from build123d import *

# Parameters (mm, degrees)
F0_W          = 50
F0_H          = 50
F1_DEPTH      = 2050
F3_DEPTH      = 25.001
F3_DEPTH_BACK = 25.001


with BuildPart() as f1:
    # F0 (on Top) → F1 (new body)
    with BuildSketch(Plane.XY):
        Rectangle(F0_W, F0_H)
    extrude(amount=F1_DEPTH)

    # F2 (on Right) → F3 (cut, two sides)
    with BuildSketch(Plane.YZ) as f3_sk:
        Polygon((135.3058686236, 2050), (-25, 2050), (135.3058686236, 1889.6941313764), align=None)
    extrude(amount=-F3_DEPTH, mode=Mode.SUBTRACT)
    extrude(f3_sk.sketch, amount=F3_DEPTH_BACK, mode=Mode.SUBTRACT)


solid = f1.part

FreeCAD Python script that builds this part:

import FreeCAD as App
import Part
import Sketcher
from FreeCAD import Vector
Q = App.Units.Quantity

doc = App.newDocument("Part")
body = doc.addObject("PartDesign::Body", "Body")

sketch1 = body.newObject("Sketcher::SketchObject", "Sketch")
sketch1.AttachmentSupport = (doc.getObject("XY_Plane"), [""])
sketch1.MapMode = "FlatFace"
sketch1.addGeometry(Part.LineSegment(Vector(-25, 25, 0), Vector(-25, -25, 0)), False)
sketch1.addGeometry(Part.LineSegment(Vector(-25, -25, 0), Vector(25, -25, 0)), False)
sketch1.addGeometry(Part.LineSegment(Vector(25, -25, 0), Vector(25, 25, 0)), False)
sketch1.addGeometry(Part.LineSegment(Vector(25, 25, 0), Vector(-25, 25, 0)), False)
sketch1.addConstraint(Sketcher.Constraint("Coincident", 0, 2, 1, 1))
sketch1.addConstraint(Sketcher.Constraint("Coincident", 1, 2, 2, 1))
sketch1.addConstraint(Sketcher.Constraint("Coincident", 2, 2, 3, 1))
sketch1.addConstraint(Sketcher.Constraint("Coincident", 3, 2, 0, 1))
sketch1.addConstraint(Sketcher.Constraint("Vertical", 0))
sketch1.addConstraint(Sketcher.Constraint("Horizontal", 1))
sketch1.addConstraint(Sketcher.Constraint("Vertical", 2))
sketch1.addConstraint(Sketcher.Constraint("Horizontal", 3))
sketch1.addConstraint(Sketcher.Constraint("Symmetric", 0, 2, 2, 2, -1, 1))
sketch1.addConstraint(Sketcher.Constraint("Equal", 3, 0))
sketch1.addConstraint(Sketcher.Constraint("DistanceX", 1, 1, 1, 2, Q("50 mm")))
pad1 = body.newObject("PartDesign::Pad", "Pad")
pad1.Profile = sketch1
pad1.Length = 2050

sketch2 = body.newObject("Sketcher::SketchObject", "Sketch001")
sketch2.AttachmentSupport = (doc.getObject("YZ_Plane"), [""])
sketch2.MapMode = "FlatFace"
sketch2.addGeometry(Part.LineSegment(Vector(135.305869, 2050, 0), Vector(-25, 2050, 0)), False)
sketch2.addGeometry(Part.LineSegment(Vector(-25, 2050, 0), Vector(135.305869, 1889.694131, 0)), False)
sketch2.addGeometry(Part.LineSegment(Vector(135.305869, 1889.694131, 0), Vector(135.305869, 2050, 0)), False)
sketch2.addConstraint(Sketcher.Constraint("Coincident", 0, 2, 1, 1))
sketch2.addConstraint(Sketcher.Constraint("Coincident", 1, 2, 2, 1))
sketch2.addConstraint(Sketcher.Constraint("Coincident", 2, 2, 0, 1))
sketch2.addConstraint(Sketcher.Constraint("Horizontal", 0))
sketch2.addConstraint(Sketcher.Constraint("Vertical", 2))
sketch2.addConstraint(Sketcher.Constraint("Equal", 0, 2))
sketch2.addConstraint(Sketcher.Constraint("DistanceX", 0, 2, -1, 1, Q("25 mm")))
sketch2.addConstraint(Sketcher.Constraint("DistanceY", -1, 1, 0, 2, Q("2050 mm")))
sketch2.addConstraint(Sketcher.Constraint("DistanceX", 0, 2, 0, 1, Q("160.305869 mm")))
pocket1 = body.newObject("PartDesign::Pocket", "Pocket")
pocket1.Profile = sketch2
pocket1.Type = "ThroughAll"
pocket1.Midplane = True

doc.recompute()
